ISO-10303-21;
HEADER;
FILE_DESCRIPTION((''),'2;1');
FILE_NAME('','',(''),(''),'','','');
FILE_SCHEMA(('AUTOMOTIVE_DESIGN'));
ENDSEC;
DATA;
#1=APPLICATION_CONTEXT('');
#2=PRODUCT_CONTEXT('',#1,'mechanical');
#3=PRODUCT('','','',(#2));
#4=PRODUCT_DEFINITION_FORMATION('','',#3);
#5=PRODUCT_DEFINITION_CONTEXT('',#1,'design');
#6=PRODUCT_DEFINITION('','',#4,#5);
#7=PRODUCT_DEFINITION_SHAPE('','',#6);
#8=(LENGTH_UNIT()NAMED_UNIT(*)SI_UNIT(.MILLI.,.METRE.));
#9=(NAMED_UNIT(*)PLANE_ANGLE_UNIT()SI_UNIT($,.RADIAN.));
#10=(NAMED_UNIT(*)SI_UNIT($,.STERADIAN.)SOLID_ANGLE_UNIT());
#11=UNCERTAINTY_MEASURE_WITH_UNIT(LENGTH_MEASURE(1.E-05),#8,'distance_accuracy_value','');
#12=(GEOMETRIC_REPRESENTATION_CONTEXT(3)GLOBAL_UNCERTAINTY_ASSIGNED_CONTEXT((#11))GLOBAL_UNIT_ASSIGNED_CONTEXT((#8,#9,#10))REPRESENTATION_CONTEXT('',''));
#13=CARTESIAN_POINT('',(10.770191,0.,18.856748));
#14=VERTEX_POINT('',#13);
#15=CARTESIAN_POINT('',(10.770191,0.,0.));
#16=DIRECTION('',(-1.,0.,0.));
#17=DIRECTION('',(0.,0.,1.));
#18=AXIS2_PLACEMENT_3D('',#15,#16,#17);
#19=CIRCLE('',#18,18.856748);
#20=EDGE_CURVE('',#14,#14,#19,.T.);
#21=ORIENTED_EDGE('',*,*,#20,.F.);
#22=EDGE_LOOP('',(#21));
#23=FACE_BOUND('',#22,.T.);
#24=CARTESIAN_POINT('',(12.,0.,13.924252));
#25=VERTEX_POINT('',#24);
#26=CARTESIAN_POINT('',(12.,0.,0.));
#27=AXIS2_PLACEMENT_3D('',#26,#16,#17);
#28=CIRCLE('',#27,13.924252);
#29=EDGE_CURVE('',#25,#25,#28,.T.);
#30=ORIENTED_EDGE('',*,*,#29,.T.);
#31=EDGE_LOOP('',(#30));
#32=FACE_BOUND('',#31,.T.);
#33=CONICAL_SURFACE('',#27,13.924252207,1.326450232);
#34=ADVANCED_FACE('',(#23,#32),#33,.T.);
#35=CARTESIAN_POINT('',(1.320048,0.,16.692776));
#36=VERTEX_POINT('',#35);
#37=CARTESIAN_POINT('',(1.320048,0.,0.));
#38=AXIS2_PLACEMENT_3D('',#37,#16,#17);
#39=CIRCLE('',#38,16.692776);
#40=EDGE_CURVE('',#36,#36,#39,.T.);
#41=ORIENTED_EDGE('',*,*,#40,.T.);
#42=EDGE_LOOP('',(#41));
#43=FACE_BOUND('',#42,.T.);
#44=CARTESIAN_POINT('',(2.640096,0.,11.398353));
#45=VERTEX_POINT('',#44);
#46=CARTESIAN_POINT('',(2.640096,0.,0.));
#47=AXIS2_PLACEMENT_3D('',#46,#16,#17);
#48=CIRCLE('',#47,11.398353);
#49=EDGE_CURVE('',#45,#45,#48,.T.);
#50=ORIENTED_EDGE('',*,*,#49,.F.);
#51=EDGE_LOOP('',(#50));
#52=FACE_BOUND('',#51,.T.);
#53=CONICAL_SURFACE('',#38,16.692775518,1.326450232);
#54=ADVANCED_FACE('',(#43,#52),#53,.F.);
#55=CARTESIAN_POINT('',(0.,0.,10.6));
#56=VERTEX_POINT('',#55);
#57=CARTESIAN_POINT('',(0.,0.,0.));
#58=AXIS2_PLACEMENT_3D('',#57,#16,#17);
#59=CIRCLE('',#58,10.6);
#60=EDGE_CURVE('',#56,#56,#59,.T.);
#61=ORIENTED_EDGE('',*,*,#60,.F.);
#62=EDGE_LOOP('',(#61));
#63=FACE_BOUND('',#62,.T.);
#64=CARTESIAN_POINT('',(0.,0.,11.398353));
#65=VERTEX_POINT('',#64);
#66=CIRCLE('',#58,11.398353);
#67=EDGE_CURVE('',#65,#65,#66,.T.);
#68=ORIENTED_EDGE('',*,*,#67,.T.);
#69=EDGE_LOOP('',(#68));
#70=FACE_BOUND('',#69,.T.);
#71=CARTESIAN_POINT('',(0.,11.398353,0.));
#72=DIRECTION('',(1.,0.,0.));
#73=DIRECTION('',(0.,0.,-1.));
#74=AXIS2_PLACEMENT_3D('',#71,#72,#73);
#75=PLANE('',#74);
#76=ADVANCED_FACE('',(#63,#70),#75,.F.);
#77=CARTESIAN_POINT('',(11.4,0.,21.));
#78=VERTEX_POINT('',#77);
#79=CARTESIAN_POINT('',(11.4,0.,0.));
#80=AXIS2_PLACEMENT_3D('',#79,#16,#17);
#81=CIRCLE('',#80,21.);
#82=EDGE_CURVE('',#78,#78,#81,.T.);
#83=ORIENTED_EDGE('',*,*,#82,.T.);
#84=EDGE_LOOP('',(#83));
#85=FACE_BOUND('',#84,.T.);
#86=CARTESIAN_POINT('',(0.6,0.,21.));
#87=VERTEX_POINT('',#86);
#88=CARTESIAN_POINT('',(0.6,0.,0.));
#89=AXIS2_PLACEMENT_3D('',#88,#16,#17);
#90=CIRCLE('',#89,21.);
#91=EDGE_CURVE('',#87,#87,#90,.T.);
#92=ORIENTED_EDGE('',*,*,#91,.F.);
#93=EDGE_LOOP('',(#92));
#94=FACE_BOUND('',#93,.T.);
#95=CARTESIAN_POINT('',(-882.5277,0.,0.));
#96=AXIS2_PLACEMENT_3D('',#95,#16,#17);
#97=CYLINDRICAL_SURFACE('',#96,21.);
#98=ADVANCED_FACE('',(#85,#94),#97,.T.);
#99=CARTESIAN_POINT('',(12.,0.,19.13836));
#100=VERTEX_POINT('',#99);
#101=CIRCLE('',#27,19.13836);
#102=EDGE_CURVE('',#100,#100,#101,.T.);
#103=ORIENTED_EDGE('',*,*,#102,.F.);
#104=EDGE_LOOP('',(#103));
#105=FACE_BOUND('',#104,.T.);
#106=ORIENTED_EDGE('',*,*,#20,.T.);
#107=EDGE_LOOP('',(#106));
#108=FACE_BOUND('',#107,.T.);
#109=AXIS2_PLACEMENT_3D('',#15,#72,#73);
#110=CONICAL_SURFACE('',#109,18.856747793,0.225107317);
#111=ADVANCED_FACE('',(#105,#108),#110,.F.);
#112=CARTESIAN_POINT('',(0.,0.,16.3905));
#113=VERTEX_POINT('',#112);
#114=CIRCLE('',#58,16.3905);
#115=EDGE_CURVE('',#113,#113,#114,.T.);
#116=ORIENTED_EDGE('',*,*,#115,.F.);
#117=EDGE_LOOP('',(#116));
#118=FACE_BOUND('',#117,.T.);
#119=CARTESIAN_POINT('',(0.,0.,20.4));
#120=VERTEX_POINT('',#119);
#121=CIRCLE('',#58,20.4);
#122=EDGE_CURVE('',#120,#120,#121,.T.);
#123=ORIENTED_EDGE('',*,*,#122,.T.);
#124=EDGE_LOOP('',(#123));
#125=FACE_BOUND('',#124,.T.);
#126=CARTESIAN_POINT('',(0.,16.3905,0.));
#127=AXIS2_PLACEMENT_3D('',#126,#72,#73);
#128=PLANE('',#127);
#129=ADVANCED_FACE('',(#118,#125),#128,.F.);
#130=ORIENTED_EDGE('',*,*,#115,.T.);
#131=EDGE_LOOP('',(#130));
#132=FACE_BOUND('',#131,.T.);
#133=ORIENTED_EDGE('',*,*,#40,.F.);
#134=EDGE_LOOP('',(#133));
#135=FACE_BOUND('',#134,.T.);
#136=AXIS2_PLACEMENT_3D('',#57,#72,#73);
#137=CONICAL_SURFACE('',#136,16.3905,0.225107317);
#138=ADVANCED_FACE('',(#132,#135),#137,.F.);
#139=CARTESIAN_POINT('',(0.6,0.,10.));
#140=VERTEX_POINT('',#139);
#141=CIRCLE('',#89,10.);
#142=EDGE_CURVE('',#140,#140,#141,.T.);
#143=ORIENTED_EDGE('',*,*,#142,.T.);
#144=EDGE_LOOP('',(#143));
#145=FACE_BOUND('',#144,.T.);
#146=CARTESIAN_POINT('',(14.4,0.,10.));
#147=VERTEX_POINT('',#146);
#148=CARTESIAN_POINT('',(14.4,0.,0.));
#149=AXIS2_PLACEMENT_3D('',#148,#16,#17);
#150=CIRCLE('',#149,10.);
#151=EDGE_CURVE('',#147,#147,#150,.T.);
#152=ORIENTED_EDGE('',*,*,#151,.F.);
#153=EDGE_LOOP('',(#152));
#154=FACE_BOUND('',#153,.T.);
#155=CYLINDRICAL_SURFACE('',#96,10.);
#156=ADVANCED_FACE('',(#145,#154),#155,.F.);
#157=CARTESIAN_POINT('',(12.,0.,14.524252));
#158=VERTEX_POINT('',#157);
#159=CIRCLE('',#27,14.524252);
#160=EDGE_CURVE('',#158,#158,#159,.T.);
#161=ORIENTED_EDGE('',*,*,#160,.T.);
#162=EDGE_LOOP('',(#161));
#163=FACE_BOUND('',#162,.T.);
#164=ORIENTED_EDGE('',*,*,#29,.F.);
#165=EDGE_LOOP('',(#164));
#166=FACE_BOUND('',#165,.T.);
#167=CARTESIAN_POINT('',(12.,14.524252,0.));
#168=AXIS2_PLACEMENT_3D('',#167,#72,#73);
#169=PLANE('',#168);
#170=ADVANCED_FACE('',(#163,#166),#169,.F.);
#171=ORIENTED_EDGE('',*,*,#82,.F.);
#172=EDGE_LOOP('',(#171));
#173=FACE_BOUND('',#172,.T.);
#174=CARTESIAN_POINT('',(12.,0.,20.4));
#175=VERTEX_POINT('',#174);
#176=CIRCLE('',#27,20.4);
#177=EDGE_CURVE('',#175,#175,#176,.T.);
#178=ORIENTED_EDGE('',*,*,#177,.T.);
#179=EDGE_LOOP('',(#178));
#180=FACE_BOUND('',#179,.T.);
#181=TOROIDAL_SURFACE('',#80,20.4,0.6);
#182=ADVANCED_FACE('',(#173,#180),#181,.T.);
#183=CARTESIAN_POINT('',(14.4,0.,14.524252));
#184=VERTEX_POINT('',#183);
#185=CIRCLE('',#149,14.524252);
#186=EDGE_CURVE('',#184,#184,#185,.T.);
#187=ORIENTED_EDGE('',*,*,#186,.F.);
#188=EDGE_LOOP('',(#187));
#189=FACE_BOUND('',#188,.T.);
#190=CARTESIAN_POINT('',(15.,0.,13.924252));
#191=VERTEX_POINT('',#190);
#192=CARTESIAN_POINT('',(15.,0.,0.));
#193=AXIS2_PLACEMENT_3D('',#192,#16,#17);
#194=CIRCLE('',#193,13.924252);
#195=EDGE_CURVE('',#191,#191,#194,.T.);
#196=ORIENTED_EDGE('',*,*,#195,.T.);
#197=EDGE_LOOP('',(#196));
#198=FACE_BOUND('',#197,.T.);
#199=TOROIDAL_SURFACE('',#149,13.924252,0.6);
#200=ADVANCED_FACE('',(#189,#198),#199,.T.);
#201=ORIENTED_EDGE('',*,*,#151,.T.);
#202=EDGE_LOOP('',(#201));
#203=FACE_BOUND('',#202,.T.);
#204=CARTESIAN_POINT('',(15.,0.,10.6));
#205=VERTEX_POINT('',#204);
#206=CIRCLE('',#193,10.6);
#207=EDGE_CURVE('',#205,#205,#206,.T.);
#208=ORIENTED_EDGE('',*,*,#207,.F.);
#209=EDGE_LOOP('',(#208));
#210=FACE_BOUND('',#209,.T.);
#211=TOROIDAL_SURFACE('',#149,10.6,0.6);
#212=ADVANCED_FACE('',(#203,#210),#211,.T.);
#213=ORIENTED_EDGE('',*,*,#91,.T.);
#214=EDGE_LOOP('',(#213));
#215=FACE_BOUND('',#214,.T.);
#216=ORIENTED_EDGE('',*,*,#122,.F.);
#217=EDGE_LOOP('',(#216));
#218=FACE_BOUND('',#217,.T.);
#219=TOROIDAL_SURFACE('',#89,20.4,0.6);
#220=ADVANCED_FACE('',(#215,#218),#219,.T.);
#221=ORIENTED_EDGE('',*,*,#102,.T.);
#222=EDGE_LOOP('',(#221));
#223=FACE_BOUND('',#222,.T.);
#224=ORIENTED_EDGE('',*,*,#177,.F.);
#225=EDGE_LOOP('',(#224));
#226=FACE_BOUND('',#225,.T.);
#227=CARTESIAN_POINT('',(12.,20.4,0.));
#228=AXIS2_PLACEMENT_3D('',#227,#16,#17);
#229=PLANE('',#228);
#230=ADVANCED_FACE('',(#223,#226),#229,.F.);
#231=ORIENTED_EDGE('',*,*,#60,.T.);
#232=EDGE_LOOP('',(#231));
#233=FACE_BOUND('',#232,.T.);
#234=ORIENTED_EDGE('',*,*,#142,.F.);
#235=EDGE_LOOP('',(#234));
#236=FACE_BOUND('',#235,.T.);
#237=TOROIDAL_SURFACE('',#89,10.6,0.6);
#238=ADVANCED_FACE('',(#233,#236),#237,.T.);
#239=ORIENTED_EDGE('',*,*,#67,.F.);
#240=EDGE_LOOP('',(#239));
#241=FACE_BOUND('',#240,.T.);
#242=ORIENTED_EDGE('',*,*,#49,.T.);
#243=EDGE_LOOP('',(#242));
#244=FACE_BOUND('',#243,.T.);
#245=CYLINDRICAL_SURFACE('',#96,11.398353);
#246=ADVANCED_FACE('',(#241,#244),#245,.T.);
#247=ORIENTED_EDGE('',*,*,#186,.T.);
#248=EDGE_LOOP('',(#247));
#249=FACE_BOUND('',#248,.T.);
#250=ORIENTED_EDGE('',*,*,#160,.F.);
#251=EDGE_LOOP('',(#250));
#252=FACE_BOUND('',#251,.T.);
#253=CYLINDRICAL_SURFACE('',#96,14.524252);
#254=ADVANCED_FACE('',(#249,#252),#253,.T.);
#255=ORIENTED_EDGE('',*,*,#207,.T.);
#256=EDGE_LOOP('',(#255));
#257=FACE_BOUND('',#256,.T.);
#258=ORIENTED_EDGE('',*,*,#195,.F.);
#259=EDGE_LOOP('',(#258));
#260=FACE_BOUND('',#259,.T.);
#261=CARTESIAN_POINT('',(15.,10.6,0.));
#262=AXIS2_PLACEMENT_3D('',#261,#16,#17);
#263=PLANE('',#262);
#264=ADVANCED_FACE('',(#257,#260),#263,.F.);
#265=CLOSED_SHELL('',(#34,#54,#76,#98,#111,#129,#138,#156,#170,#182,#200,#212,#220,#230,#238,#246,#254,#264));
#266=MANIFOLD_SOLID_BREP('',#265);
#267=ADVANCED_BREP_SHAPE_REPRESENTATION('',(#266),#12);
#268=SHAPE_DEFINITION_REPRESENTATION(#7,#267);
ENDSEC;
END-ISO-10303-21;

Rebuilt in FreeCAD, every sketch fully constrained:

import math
import FreeCAD as App
import Part
import Sketcher
from FreeCAD import Vector

doc = App.newDocument("Part")
params = doc.addObject("Spreadsheet::Sheet", "Params")
for row, (alias, value) in enumerate([
    ("sketch1_radius", "0.6 mm"),
    ("sketch1_radius2", "0.6 mm"),
    ("sketch1_radius3", "0.6 mm"),
    ("sketch1_radius4", "0.6 mm"),
    ("sketch1_radius5", "0.6 mm"),
    ("revolution_angle", "360 deg"),
], start=1):
    params.set(f"A{row}", alias)
    params.set(f"B{row}", "=" + value)
    params.setAlias(f"B{row}", alias)

body = doc.addObject("PartDesign::Body", "Body")

# Sketch on XY plane
sketch1 = doc.addObject("Sketcher::SketchObject", "Sketch")
body.addObject(sketch1)
sketch1.AttachmentSupport = (doc.XY_Plane, [""])
sketch1.MapMode = "FlatFace"
sketch1.addGeometry([
    Part.LineSegment(Vector(0, 16.3905, 0), Vector(1.320048, 16.692776, 0)),  # 0
    Part.LineSegment(Vector(1.320048, 16.692776, 0), Vector(2.640096, 11.398353, 0)),  # 1
    Part.LineSegment(Vector(2.640096, 11.398353, 0), Vector(0, 11.398353, 0)),  # 2
    Part.LineSegment(Vector(0, 11.398353, 0), Vector(0, 10.6, 0)),  # 3
    Part.ArcOfCircle(Part.Circle(Vector(0.6, 10.6, 0), Vector(0, 0, 1), 0.6), math.radians(180), math.radians(270)),  # 4
    Part.LineSegment(Vector(0.6, 10, 0), Vector(14.4, 10, 0)),  # 5
    Part.ArcOfCircle(Part.Circle(Vector(14.4, 10.6, 0), Vector(0, 0, 1), 0.6), math.radians(-90), math.radians(0)),  # 6
    Part.LineSegment(Vector(15, 10.6, 0), Vector(15, 13.924252, 0)),  # 7
    Part.ArcOfCircle(Part.Circle(Vector(14.4, 13.924252, 0), Vector(0, 0, 1), 0.6), math.radians(0), math.radians(90)),  # 8
    Part.LineSegment(Vector(14.4, 14.524252, 0), Vector(12, 14.524252, 0)),  # 9
    Part.LineSegment(Vector(12, 14.524252, 0), Vector(12, 13.924252, 0)),  # 10
    Part.LineSegment(Vector(12, 13.924252, 0), Vector(10.770191, 18.856748, 0)),  # 11
    Part.LineSegment(Vector(10.770191, 18.856748, 0), Vector(12, 19.13836, 0)),  # 12
    Part.LineSegment(Vector(12, 19.13836, 0), Vector(12, 20.4, 0)),  # 13
    Part.ArcOfCircle(Part.Circle(Vector(11.4, 20.4, 0), Vector(0, 0, 1), 0.6), math.radians(0), math.radians(90)),  # 14
    Part.LineSegment(Vector(11.4, 21, 0), Vector(0.6, 21, 0)),  # 15
    Part.ArcOfCircle(Part.Circle(Vector(0.6, 20.4, 0), Vector(0, 0, 1), 0.6), math.radians(90), math.radians(180)),  # 16
    Part.LineSegment(Vector(0, 20.4, 0), Vector(0, 16.3905, 0)),  # 17
], False)
sketch1.addConstraint([
    Sketcher.Constraint("Coincident", 0, 2, 1, 1),
    Sketcher.Constraint("Coincident", 1, 2, 2, 1),
    Sketcher.Constraint("Coincident", 2, 2, 3, 1),
    Sketcher.Constraint("Coincident", 3, 2, 4, 1),
    Sketcher.Constraint("Coincident", 4, 2, 5, 1),
    Sketcher.Constraint("Coincident", 5, 2, 6, 1),
    Sketcher.Constraint("Coincident", 6, 2, 7, 1),
    Sketcher.Constraint("Coincident", 7, 2, 8, 1),
    Sketcher.Constraint("Coincident", 8, 2, 9, 1),
    Sketcher.Constraint("Coincident", 9, 2, 10, 1),
    Sketcher.Constraint("Coincident", 10, 2, 11, 1),
    Sketcher.Constraint("Coincident", 11, 2, 12, 1),
    Sketcher.Constraint("Coincident", 12, 2, 13, 1),
    Sketcher.Constraint("Coincident", 13, 2, 14, 1),
    Sketcher.Constraint("Coincident", 14, 2, 15, 1),
    Sketcher.Constraint("Coincident", 15, 2, 16, 1),
    Sketcher.Constraint("Coincident", 16, 2, 17, 1),
    Sketcher.Constraint("Coincident", 17, 2, 0, 1),
    Sketcher.Constraint("Horizontal", 2),
    Sketcher.Constraint("Vertical", 3),
    Sketcher.Constraint("Horizontal", 5),
    Sketcher.Constraint("Vertical", 7),
    Sketcher.Constraint("Horizontal", 9),
    Sketcher.Constraint("Vertical", 10),
    Sketcher.Constraint("Vertical", 13),
    Sketcher.Constraint("Horizontal", 15),
    Sketcher.Constraint("Vertical", 17),
    Sketcher.Constraint("PointOnObject", 2, 2, -2),
    Sketcher.Constraint("PointOnObject", 16, 2, -2),
    Sketcher.Constraint("Radius", 4, 0.6),
    Sketcher.Constraint("Radius", 6, 0.6),
    Sketcher.Constraint("Radius", 8, 0.6),
    Sketcher.Constraint("Radius", 14, 0.6),
    Sketcher.Constraint("Radius", 16, 0.6),
    Sketcher.Constraint("DistanceX", 5, 1, 5, 2, 13.8),
    Sketcher.Constraint("DistanceX", 9, 2, 9, 1, 2.4),
    Sketcher.Constraint("DistanceX", 15, 2, 15, 1, 10.8),
    Sketcher.Constraint("DistanceY", 10, 2, 10, 1, 0.6),
    Sketcher.Constraint("DistanceY", -1, 1, 4, 2, 10.0),
    Sketcher.Constraint("DistanceX", -1, 1, 6, 2, 15.0),
    Sketcher.Constraint("DistanceX", -1, 1, 9, 2, 12.0),
    Sketcher.Constraint("DistanceX", -1, 1, 12, 2, 12.0),
    Sketcher.Constraint("DistanceY", -1, 1, 14, 2, 21.0),
    Sketcher.Constraint("DistanceX", 14, 3, 5, 2, 3.0),
    Sketcher.Constraint("DistanceY", -1, 1, 3, 2, 10.6),
    Sketcher.Constraint("DistanceY", -1, 1, 6, 2, 10.6),
    Sketcher.Constraint("DistanceY", -1, 1, 13, 2, 20.4),
    Sketcher.Constraint("DistanceX", -1, 1, 14, 2, 11.4),
    Sketcher.Constraint("DistanceY", -1, 1, 16, 2, 20.4),
    Sketcher.Constraint("DistanceY", 7, 2, 8, 2, 0.6),
    Sketcher.Constraint("DistanceY", 17, 2, 17, 1, 4.0095),
    Sketcher.Constraint("DistanceY", 13, 1, 13, 2, 1.26164),
    Sketcher.Constraint("DistanceY", 1, 2, 8, 3, 2.525899),
    Sketcher.Constraint("Distance", 12, 1.26164),
    Sketcher.Constraint("DistanceX", 2, 2, 2, 1, 2.640096),
    Sketcher.Constraint("DistanceY", 3, 2, 3, 1, 0.798353),
    Sketcher.Constraint("DistanceX", -1, 1, 11, 2, 10.770191),
    Sketcher.Constraint("Distance", 0, 1.354214),
    Sketcher.Constraint("Distance", 1, 5.456504),
])
sketch1.setExpression("Constraints[29]", "Params.sketch1_radius")
sketch1.setExpression("Constraints[30]", "Params.sketch1_radius2")
sketch1.setExpression("Constraints[31]", "Params.sketch1_radius3")
sketch1.setExpression("Constraints[32]", "Params.sketch1_radius4")
sketch1.setExpression("Constraints[33]", "Params.sketch1_radius5")
revolution = doc.addObject("PartDesign::Revolution", "Revolution")
body.addObject(revolution)
revolution.Profile = sketch1
revolution.ReferenceAxis = (sketch1, ["H_Axis"])
revolution.setExpression("Angle", "Params.revolution_angle")

doc.recompute()
